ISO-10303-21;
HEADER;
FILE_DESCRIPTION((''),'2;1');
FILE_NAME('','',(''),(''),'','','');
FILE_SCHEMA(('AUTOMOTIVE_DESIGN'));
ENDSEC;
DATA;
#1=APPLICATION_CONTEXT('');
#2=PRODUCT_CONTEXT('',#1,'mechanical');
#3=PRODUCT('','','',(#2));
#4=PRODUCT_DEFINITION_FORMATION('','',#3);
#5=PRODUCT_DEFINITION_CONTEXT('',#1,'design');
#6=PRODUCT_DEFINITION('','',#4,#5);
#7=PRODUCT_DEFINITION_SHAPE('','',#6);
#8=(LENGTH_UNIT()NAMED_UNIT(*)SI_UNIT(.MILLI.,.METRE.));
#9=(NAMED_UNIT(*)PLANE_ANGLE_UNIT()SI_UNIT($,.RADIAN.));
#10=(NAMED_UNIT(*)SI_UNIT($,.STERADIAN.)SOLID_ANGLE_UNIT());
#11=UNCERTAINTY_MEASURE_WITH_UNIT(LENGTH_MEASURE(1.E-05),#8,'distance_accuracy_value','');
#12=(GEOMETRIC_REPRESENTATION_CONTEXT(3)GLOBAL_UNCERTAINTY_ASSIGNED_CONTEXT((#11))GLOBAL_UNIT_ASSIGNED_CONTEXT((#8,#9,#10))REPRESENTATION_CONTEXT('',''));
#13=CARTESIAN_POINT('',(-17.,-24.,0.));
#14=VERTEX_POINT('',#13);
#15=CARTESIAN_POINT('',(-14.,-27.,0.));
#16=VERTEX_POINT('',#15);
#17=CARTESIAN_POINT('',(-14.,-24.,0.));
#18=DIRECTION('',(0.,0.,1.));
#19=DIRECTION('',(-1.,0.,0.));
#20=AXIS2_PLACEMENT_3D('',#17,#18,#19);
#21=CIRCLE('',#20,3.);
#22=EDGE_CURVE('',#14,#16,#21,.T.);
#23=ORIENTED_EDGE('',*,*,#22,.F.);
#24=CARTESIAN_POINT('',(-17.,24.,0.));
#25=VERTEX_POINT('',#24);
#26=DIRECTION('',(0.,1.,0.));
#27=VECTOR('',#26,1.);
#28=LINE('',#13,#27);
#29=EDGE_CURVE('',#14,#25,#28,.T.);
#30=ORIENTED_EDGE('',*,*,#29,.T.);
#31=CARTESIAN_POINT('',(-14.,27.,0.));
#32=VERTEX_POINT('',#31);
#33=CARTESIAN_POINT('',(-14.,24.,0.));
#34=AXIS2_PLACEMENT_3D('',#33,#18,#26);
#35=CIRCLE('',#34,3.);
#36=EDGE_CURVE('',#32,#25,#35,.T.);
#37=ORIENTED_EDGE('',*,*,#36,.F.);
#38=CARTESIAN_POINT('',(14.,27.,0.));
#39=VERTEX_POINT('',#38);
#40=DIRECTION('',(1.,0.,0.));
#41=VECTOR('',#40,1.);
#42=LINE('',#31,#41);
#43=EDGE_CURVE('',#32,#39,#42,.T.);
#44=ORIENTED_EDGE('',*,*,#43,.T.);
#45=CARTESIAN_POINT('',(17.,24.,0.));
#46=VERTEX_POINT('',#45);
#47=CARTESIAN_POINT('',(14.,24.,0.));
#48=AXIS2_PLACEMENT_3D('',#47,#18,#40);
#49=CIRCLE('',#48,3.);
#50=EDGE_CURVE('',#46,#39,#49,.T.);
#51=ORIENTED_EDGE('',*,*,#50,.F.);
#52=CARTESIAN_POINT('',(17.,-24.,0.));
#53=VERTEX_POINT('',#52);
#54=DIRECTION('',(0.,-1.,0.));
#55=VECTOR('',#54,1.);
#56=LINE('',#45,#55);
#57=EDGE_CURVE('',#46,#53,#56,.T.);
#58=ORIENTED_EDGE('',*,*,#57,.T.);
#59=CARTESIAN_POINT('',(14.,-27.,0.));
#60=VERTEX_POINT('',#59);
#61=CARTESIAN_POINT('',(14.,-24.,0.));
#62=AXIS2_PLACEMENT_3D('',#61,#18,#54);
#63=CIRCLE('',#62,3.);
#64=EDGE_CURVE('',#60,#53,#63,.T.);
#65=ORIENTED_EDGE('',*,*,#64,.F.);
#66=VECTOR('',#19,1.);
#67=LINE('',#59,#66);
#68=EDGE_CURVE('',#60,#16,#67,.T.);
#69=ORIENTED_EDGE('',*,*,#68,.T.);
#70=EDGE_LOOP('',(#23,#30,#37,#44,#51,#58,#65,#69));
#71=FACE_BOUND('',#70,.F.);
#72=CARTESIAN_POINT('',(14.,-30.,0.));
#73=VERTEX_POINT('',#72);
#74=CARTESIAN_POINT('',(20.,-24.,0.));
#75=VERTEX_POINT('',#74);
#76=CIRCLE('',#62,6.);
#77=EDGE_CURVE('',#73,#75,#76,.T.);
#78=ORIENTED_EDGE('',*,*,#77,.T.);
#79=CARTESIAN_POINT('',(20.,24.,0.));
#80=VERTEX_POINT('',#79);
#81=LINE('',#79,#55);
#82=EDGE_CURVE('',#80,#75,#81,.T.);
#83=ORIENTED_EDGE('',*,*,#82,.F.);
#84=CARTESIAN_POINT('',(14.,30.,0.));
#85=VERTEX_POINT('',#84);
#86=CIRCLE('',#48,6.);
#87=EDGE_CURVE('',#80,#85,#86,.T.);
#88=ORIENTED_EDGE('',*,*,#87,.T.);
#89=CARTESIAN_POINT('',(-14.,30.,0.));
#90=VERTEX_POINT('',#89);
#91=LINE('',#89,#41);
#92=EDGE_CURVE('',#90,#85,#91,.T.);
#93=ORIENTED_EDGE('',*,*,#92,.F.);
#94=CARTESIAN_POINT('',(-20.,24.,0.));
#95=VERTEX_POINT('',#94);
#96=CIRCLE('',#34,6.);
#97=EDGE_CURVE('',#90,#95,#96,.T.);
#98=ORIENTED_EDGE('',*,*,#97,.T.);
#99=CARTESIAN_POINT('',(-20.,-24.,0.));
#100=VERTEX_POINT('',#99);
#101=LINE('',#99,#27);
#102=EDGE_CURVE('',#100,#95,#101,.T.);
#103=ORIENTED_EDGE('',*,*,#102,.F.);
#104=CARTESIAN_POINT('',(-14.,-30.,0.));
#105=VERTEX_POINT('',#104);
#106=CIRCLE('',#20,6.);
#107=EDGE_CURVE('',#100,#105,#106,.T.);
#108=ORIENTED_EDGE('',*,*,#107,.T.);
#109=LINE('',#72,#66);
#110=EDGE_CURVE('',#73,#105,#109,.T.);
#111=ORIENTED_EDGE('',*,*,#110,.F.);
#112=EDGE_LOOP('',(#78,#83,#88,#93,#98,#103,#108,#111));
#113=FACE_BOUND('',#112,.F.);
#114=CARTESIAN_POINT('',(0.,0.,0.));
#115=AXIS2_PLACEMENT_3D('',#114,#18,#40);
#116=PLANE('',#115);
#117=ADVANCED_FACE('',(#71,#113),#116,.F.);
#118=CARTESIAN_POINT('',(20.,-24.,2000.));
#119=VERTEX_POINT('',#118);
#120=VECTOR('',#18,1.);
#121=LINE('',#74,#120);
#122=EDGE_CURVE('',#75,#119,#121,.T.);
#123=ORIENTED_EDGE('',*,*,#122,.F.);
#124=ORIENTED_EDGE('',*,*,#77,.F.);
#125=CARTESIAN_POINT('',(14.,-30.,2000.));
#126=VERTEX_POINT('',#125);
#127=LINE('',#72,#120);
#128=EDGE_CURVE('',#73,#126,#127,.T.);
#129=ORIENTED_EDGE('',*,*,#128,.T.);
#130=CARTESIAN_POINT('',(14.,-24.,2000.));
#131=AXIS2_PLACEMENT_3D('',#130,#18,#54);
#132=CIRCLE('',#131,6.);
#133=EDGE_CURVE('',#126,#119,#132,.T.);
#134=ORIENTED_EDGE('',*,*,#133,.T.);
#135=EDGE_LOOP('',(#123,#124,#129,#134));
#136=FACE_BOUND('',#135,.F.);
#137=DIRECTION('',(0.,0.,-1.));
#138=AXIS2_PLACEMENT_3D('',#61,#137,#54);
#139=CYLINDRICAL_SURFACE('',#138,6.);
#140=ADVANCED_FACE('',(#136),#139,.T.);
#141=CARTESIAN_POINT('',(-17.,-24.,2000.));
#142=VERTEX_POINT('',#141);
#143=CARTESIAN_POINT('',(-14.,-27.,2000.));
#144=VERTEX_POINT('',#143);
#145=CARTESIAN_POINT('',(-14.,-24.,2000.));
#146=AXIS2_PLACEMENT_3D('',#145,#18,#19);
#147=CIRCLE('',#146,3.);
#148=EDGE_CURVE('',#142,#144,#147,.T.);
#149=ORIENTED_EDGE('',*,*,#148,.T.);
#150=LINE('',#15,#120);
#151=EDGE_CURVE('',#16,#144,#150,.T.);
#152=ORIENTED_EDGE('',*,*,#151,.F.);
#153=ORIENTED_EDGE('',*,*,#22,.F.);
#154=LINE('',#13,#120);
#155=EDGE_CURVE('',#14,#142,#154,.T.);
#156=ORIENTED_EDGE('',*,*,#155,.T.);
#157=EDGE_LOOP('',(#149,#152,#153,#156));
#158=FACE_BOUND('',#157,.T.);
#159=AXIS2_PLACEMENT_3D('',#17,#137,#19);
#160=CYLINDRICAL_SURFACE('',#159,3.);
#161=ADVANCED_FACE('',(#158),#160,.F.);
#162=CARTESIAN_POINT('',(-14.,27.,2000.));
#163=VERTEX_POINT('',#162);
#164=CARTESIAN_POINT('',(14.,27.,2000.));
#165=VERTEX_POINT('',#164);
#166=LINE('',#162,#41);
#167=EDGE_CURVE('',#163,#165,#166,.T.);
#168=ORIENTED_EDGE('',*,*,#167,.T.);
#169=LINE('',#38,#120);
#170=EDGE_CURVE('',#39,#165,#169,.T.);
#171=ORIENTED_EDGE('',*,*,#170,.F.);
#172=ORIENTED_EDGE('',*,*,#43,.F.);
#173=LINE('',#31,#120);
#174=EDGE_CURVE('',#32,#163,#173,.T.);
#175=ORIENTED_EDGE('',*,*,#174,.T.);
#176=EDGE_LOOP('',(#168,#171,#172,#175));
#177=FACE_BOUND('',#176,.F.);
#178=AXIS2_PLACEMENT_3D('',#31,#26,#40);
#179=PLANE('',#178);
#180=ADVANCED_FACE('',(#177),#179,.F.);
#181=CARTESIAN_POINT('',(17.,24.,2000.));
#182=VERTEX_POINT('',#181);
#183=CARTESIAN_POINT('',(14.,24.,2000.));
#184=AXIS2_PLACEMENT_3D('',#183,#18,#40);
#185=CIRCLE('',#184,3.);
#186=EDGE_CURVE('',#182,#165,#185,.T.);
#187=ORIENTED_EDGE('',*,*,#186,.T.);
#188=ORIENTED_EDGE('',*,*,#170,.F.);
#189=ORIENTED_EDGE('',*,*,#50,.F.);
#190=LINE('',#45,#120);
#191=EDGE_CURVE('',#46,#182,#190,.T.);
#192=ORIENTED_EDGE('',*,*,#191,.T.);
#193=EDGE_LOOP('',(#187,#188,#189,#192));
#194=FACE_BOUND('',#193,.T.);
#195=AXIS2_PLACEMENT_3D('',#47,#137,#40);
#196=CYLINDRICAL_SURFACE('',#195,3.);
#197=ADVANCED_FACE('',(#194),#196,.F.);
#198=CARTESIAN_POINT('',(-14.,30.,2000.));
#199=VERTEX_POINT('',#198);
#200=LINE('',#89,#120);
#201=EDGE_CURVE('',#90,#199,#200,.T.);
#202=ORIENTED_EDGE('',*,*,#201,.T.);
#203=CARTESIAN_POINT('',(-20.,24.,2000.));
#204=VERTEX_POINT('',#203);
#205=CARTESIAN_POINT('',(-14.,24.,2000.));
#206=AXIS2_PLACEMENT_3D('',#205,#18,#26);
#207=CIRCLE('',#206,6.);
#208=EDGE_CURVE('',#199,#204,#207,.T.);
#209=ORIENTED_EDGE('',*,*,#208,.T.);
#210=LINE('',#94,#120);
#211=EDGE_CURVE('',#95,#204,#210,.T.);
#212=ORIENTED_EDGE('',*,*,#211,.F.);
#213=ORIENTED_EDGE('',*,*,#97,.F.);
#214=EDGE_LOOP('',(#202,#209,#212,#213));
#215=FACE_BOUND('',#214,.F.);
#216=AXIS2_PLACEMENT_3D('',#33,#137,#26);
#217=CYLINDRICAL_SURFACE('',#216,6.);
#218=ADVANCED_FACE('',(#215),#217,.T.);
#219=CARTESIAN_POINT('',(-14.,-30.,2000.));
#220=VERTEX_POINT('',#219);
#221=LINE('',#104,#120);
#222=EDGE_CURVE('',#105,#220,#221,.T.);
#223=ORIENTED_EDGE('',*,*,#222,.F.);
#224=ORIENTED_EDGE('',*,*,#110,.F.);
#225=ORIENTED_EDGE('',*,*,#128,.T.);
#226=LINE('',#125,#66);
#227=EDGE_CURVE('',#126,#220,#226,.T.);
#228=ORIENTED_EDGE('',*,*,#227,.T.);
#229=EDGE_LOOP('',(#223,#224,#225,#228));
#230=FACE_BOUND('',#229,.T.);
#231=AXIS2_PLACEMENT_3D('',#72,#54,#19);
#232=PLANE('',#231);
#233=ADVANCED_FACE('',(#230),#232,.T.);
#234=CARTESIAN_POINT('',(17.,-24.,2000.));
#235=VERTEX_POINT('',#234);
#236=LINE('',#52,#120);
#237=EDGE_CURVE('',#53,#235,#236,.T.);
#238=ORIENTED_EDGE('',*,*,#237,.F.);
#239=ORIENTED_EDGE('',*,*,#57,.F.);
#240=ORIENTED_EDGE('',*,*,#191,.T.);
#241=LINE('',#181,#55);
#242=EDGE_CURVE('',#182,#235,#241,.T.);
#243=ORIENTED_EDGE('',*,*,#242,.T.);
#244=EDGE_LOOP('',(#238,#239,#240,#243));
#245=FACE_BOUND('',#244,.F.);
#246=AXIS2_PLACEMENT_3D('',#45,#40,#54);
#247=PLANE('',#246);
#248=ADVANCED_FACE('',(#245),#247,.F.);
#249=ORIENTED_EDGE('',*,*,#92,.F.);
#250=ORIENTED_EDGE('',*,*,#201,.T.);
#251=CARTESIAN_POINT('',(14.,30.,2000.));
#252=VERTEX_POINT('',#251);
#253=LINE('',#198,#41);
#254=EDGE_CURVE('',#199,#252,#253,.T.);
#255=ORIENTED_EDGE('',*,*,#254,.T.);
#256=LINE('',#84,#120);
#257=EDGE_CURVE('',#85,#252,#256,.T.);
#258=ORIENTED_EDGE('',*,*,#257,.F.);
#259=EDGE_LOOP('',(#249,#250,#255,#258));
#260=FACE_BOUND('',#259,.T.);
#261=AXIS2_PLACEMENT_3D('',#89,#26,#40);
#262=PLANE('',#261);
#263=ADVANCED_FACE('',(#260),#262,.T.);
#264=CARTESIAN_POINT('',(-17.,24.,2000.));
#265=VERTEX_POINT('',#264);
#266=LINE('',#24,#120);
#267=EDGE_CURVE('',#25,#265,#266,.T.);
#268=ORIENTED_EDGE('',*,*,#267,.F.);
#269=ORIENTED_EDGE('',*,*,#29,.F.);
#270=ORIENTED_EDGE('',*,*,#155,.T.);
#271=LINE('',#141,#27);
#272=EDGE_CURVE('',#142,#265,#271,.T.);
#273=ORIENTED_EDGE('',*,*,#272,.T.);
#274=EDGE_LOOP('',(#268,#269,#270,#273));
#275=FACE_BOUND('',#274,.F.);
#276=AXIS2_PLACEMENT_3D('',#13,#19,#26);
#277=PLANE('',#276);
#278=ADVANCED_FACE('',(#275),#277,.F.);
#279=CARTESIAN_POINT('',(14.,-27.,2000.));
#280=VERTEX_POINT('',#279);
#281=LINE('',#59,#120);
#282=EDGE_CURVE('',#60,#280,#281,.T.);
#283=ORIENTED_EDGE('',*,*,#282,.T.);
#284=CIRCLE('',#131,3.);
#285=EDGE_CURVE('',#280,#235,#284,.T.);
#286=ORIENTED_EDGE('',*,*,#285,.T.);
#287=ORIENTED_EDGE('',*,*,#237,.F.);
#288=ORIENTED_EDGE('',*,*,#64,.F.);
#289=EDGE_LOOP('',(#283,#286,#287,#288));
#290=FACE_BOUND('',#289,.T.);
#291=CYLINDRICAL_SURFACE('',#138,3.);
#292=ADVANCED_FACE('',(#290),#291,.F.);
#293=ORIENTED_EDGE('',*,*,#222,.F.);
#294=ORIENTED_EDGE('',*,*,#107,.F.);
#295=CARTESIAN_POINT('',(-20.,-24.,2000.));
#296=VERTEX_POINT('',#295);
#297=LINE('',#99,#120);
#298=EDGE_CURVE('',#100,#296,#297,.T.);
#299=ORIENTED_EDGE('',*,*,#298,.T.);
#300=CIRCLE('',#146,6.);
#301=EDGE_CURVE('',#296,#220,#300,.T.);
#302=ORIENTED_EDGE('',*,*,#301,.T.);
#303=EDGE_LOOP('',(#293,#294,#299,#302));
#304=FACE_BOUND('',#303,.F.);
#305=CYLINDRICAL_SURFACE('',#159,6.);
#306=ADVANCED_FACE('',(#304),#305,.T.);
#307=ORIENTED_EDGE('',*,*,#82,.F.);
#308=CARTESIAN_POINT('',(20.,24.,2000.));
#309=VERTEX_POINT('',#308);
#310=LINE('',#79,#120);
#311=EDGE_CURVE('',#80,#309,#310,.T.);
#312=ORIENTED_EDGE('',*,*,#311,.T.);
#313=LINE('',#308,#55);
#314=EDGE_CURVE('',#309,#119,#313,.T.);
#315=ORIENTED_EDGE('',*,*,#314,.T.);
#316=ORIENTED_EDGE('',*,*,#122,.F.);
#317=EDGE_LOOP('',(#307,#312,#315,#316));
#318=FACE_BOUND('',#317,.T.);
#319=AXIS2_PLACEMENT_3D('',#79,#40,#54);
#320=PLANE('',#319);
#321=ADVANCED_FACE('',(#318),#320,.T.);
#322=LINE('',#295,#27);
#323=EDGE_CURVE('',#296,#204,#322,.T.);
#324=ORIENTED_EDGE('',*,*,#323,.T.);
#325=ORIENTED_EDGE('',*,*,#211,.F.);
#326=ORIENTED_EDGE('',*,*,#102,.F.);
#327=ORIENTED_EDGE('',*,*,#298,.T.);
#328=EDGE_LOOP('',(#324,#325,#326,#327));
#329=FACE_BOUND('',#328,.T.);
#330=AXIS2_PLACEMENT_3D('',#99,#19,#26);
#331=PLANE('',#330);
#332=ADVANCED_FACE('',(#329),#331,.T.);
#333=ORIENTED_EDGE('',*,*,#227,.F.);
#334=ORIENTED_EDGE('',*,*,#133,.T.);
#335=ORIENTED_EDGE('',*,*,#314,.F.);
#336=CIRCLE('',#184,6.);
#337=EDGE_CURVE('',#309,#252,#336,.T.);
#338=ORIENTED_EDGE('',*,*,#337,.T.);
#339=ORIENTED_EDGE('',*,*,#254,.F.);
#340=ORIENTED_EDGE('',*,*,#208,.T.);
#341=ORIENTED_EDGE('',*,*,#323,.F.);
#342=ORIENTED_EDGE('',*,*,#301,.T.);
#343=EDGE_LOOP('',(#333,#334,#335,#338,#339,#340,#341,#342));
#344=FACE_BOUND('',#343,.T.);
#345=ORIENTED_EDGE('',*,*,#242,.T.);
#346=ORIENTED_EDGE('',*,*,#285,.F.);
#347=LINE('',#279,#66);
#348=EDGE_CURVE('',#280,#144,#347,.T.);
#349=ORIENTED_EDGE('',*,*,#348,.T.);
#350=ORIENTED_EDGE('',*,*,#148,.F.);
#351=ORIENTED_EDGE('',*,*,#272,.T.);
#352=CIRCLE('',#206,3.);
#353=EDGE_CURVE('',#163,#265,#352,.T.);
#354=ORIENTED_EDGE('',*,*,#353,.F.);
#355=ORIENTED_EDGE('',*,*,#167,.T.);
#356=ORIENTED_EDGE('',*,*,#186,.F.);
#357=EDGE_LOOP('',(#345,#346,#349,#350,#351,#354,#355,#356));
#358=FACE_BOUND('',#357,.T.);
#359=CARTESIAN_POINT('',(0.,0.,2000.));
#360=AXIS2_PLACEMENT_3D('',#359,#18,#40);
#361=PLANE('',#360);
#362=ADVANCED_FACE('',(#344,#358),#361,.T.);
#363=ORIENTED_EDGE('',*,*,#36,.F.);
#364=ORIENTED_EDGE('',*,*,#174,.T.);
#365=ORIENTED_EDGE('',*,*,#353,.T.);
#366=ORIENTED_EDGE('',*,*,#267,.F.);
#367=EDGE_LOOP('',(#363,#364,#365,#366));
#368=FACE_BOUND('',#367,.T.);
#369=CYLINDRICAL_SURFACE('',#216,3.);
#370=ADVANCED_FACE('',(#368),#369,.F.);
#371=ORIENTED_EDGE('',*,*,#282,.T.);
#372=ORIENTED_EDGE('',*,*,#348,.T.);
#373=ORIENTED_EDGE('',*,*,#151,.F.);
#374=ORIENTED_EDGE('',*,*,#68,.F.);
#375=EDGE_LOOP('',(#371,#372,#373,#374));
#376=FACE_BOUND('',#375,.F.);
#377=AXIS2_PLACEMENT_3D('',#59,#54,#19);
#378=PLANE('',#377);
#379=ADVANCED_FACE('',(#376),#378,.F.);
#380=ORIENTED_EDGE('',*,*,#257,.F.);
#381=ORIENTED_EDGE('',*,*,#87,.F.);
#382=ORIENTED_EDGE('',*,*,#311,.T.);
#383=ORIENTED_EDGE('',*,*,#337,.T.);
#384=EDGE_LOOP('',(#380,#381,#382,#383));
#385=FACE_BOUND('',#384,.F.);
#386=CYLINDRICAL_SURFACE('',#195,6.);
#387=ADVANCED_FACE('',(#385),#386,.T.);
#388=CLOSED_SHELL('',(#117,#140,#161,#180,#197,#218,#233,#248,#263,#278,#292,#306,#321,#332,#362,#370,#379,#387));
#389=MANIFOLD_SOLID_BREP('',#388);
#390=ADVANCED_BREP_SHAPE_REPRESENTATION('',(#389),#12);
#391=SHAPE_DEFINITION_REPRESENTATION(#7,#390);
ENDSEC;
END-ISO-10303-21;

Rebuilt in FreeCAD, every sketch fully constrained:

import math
import FreeCAD as App
import Part
import Sketcher

V = App.Vector

doc = App.newDocument("Part")
params = doc.addObject("Spreadsheet::Sheet", "Params")
for row, (alias, value) in enumerate([
    ("sketch1_radius", "6 mm"),
    ("sketch1_radius2", "3 mm"),
    ("pad1_length", "2000 mm"),
], start=1):
    params.set(f"A{row}", alias)
    params.set(f"B{row}", "=" + value)
    params.setAlias(f"B{row}", alias)

body = doc.addObject("PartDesign::Body", "Body")

sketch1 = body.newObject("Sketcher::SketchObject", "Sketch")
sketch1.AttachmentSupport = (doc.getObject("XY_Plane"), [""])
sketch1.MapMode = "FlatFace"
sketch1.addGeometry(Part.LineSegment(V(-20, 24, 0), V(-20, -24, 0)), False)
sketch1.addGeometry(Part.ArcOfCircle(Part.Circle(V(-14, -24, 0), V(0, 0, 1), 6), math.radians(180), math.radians(270)), False)
sketch1.addGeometry(Part.LineSegment(V(-14, -30, 0), V(14, -30, 0)), False)
sketch1.addGeometry(Part.ArcOfCircle(Part.Circle(V(14, -24, 0), V(0, 0, 1), 6), math.radians(-90), math.radians(0)), False)
sketch1.addGeometry(Part.LineSegment(V(20, -24, 0), V(20, 24, 0)), False)
sketch1.addGeometry(Part.ArcOfCircle(Part.Circle(V(14, 24, 0), V(0, 0, 1), 6), math.radians(0), math.radians(90)), False)
sketch1.addGeometry(Part.LineSegment(V(14, 30, 0), V(-14, 30, 0)), False)
sketch1.addGeometry(Part.ArcOfCircle(Part.Circle(V(-14, 24, 0), V(0, 0, 1), 6), math.radians(90), math.radians(180)), False)
sketch1.addGeometry(Part.ArcOfCircle(Part.Circle(V(-14, 24, 0), V(0, 0, 1), 3), math.radians(90), math.radians(180)), False)
sketch1.addGeometry(Part.LineSegment(V(-14, 27, 0), V(14, 27, 0)), False)
sketch1.addGeometry(Part.ArcOfCircle(Part.Circle(V(14, 24, 0), V(0, 0, 1), 3), math.radians(0), math.radians(90)), False)
sketch1.addGeometry(Part.LineSegment(V(17, 24, 0), V(17, -24, 0)), False)
sketch1.addGeometry(Part.ArcOfCircle(Part.Circle(V(14, -24, 0), V(0, 0, 1), 3), math.radians(-90), math.radians(0)), False)
sketch1.addGeometry(Part.LineSegment(V(14, -27, 0), V(-14, -27, 0)), False)
sketch1.addGeometry(Part.ArcOfCircle(Part.Circle(V(-14, -24, 0), V(0, 0, 1), 3), math.radians(180), math.radians(270)), False)
sketch1.addGeometry(Part.LineSegment(V(-17, -24, 0), V(-17, 24, 0)), False)
sketch1.addConstraint(Sketcher.Constraint("Tangent", 0, 2, 1, 1))
sketch1.addConstraint(Sketcher.Constraint("Tangent", 1, 2, 2, 1))
sketch1.addConstraint(Sketcher.Constraint("Tangent", 2, 2, 3, 1))
sketch1.addConstraint(Sketcher.Constraint("Tangent", 3, 2, 4, 1))
sketch1.addConstraint(Sketcher.Constraint("Tangent", 4, 2, 5, 1))
sketch1.addConstraint(Sketcher.Constraint("Tangent", 5, 2, 6, 1))
sketch1.addConstraint(Sketcher.Constraint("Tangent", 6, 2, 7, 1))
sketch1.addConstraint(Sketcher.Constraint("Tangent", 7, 2, 0, 1))
sketch1.addConstraint(Sketcher.Constraint("Tangent", 8, 1, 9, 1))
sketch1.addConstraint(Sketcher.Constraint("Tangent", 9, 2, 10, 2))
sketch1.addConstraint(Sketcher.Constraint("Tangent", 10, 1, 11, 1))
sketch1.addConstraint(Sketcher.Constraint("Tangent", 11, 2, 12, 2))
sketch1.addConstraint(Sketcher.Constraint("Tangent", 12, 1, 13, 1))
sketch1.addConstraint(Sketcher.Constraint("Tangent", 13, 2, 14, 2))
sketch1.addConstraint(Sketcher.Constraint("Tangent", 14, 1, 15, 1))
sketch1.addConstraint(Sketcher.Constraint("Tangent", 15, 2, 8, 2))
sketch1.addConstraint(Sketcher.Constraint("Vertical", 0))
sketch1.addConstraint(Sketcher.Constraint("Horizontal", 2))
sketch1.addConstraint(Sketcher.Constraint("Vertical", 4))
sketch1.addConstraint(Sketcher.Constraint("Horizontal", 6))
sketch1.addConstraint(Sketcher.Constraint("Horizontal", 9))
sketch1.addConstraint(Sketcher.Constraint("Vertical", 11))
sketch1.addConstraint(Sketcher.Constraint("Horizontal", 13))
sketch1.addConstraint(Sketcher.Constraint("Vertical", 15))
sketch1.addConstraint(Sketcher.Constraint("Coincident", 8, 3, 7, 3))
sketch1.addConstraint(Sketcher.Constraint("Coincident", 10, 3, 5, 3))
sketch1.addConstraint(Sketcher.Constraint("Coincident", 12, 3, 3, 3))
sketch1.addConstraint(Sketcher.Constraint("Equal", 1, 3))
sketch1.addConstraint(Sketcher.Constraint("Equal", 3, 5))
sketch1.addConstraint(Sketcher.Constraint("Equal", 5, 7))
sketch1.addConstraint(Sketcher.Constraint("Equal", 12, 14))
sketch1.addConstraint(Sketcher.Constraint("Symmetric", 1, 3, 5, 3, -1, 1))
sketch1.addConstraint(Sketcher.Constraint("Radius", 1, 6.0))
sketch1.addConstraint(Sketcher.Constraint("Radius", 8, 3.0))
sketch1.addConstraint(Sketcher.Constraint("DistanceX", 0, 2, -1, 1, 20.0))
sketch1.addConstraint(Sketcher.Constraint("DistanceY", 1, 2, -1, 1, 30.0))
sketch1.setExpression("Constraints[32]", "Params.sketch1_radius")
sketch1.setExpression("Constraints[33]", "Params.sketch1_radius2")
pad1 = body.newObject("PartDesign::Pad", "Pad")
pad1.Profile = sketch1
pad1.setExpression("Length", "Params.pad1_length")

doc.recompute()
